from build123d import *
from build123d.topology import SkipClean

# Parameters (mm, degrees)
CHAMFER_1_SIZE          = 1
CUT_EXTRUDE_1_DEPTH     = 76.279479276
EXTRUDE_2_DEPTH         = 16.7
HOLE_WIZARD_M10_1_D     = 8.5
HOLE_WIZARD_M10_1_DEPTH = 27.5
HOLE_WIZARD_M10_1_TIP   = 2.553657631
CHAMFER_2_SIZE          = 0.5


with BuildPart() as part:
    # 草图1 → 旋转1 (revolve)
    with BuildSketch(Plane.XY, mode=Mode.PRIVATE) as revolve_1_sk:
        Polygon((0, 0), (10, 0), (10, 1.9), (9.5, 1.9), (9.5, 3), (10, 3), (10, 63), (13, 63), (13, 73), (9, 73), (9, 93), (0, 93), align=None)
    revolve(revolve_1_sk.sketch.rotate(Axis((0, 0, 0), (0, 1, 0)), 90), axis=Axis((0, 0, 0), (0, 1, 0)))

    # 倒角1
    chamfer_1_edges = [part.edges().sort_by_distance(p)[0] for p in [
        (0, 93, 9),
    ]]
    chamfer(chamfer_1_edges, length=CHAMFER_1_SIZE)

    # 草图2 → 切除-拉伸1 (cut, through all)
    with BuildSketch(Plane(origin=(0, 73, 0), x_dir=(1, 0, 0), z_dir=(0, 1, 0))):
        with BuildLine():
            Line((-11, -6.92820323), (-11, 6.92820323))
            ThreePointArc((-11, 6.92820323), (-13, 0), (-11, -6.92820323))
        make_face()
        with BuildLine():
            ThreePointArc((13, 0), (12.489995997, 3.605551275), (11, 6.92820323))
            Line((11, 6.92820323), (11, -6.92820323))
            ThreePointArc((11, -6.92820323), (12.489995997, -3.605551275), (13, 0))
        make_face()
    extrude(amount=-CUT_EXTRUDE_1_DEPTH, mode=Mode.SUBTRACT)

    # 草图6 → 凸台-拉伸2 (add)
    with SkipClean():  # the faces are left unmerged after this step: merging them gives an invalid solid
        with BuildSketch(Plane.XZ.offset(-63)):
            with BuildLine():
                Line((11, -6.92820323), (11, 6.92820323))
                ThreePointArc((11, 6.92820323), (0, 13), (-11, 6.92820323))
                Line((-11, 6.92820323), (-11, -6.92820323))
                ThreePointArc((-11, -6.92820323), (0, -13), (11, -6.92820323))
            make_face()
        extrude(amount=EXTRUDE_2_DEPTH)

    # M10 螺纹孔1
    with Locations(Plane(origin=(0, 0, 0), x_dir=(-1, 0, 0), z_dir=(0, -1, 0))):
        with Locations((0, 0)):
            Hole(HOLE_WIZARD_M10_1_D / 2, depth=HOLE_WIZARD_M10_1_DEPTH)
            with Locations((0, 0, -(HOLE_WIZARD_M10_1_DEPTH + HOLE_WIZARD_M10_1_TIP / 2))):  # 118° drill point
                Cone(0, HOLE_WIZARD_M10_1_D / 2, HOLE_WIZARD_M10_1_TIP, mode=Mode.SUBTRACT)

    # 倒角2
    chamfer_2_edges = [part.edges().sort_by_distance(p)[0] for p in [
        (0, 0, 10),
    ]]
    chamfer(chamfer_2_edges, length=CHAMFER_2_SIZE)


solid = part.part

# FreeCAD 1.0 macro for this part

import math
import FreeCAD as App
import Part
import Sketcher
Q = App.Units.Quantity


def edges_at(feature, points):
    """Names of the edges that pass closest to the given points."""
    edges = feature.Shape.Edges
    near = lambda p: min(range(len(edges)), key=lambda i: edges[i].distToShape(Part.Vertex(*p))[0])
    return sorted({f"Edge{near(p) + 1}" for p in points})

doc = App.newDocument("Part")
body = doc.addObject("PartDesign::Body", "Body")

sketch1 = body.newObject("Sketcher::SketchObject", "Sketch")
sketch1.AttachmentSupport = (doc.getObject("XY_Plane"), [""])
sketch1.MapMode = "FlatFace"
sketch1.addGeometry(Part.LineSegment(App.Vector(0, 0, 0), App.Vector(10, 0, 0)), False)
sketch1.addGeometry(Part.LineSegment(App.Vector(10, 0, 0), App.Vector(10, 1.9, 0)), False)
sketch1.addGeometry(Part.LineSegment(App.Vector(10, 1.9, 0), App.Vector(9.5, 1.9, 0)), False)
sketch1.addGeometry(Part.LineSegment(App.Vector(9.5, 1.9, 0), App.Vector(9.5, 3, 0)), False)
sketch1.addGeometry(Part.LineSegment(App.Vector(9.5, 3, 0), App.Vector(10, 3, 0)), False)
sketch1.addGeometry(Part.LineSegment(App.Vector(10, 3, 0), App.Vector(10, 63, 0)), False)
sketch1.addGeometry(Part.LineSegment(App.Vector(10, 63, 0), App.Vector(13, 63, 0)), False)
sketch1.addGeometry(Part.LineSegment(App.Vector(13, 63, 0), App.Vector(13, 73, 0)), False)
sketch1.addGeometry(Part.LineSegment(App.Vector(13, 73, 0), App.Vector(9, 73, 0)), False)
sketch1.addGeometry(Part.LineSegment(App.Vector(9, 73, 0), App.Vector(9, 93, 0)), False)
sketch1.addGeometry(Part.LineSegment(App.Vector(9, 93, 0), App.Vector(0, 93, 0)), False)
sketch1.addGeometry(Part.LineSegment(App.Vector(0, 93, 0), App.Vector(0, 0, 0)), False)
sketch1.addConstraint(Sketcher.Constraint("Coincident", 0, 2, 1, 1))
sketch1.addConstraint(Sketcher.Constraint("Coincident", 1, 2, 2, 1))
sketch1.addConstraint(Sketcher.Constraint("Coincident", 2, 2, 3, 1))
sketch1.addConstraint(Sketcher.Constraint("Coincident", 3, 2, 4, 1))
sketch1.addConstraint(Sketcher.Constraint("Coincident", 4, 2, 5, 1))
sketch1.addConstraint(Sketcher.Constraint("Coincident", 5, 2, 6, 1))
sketch1.addConstraint(Sketcher.Constraint("Coincident", 6, 2, 7, 1))
sketch1.addConstraint(Sketcher.Constraint("Coincident", 7, 2, 8, 1))
sketch1.addConstraint(Sketcher.Constraint("Coincident", 8, 2, 9, 1))
sketch1.addConstraint(Sketcher.Constraint("Coincident", 9, 2, 10, 1))
sketch1.addConstraint(Sketcher.Constraint("Coincident", 10, 2, 11, 1))
sketch1.addConstraint(Sketcher.Constraint("Coincident", 11, 2, 0, 1))
sketch1.addConstraint(Sketcher.Constraint("Horizontal", 0))
sketch1.addConstraint(Sketcher.Constraint("Vertical", 1))
sketch1.addConstraint(Sketcher.Constraint("Horizontal", 2))
sketch1.addConstraint(Sketcher.Constraint("Vertical", 3))
sketch1.addConstraint(Sketcher.Constraint("Horizontal", 4))
sketch1.addConstraint(Sketcher.Constraint("Vertical", 5))
sketch1.addConstraint(Sketcher.Constraint("Horizontal", 6))
sketch1.addConstraint(Sketcher.Constraint("Vertical", 7))
sketch1.addConstraint(Sketcher.Constraint("Horizontal", 8))
sketch1.addConstraint(Sketcher.Constraint("Vertical", 9))
sketch1.addConstraint(Sketcher.Constraint("Horizontal", 10))
sketch1.addConstraint(Sketcher.Constraint("Vertical", 11))
sketch1.addConstraint(Sketcher.Constraint("Coincident", 11, 2, -1, 1))
sketch1.addConstraint(Sketcher.Constraint("Vertical", 1, 2, 4, 2))
sketch1.addConstraint(Sketcher.Constraint("Equal", 0, 7))
sketch1.addConstraint(Sketcher.Constraint("DistanceX", 0, 1, 0, 2, Q("10 mm")))
sketch1.addConstraint(Sketcher.Constraint("DistanceX", 6, 1, 6, 2, Q("3 mm")))
sketch1.addConstraint(Sketcher.Constraint("DistanceX", 8, 2, 8, 1, Q("4 mm")))
sketch1.addConstraint(Sketcher.Constraint("DistanceY", 5, 1, 5, 2, Q("60 mm")))
sketch1.addConstraint(Sketcher.Constraint("DistanceY", 9, 1, 9, 2, Q("20 mm")))
sketch1.addConstraint(Sketcher.Constraint("DistanceY", 11, 2, 11, 1, Q("93 mm")))
sketch1.addConstraint(Sketcher.Constraint("DistanceX", 2, 2, 2, 1, Q("0.5 mm")))
sketch1.addConstraint(Sketcher.Constraint("DistanceY", 1, 1, 1, 2, Q("1.9 mm")))
revolution = body.newObject("PartDesign::Revolution", "Revolution")
revolution.Profile = sketch1
revolution.ReferenceAxis = (sketch1, ["V_Axis"])
revolution.Angle = 360
doc.recompute()

chamfer = body.newObject("PartDesign::Chamfer", "Chamfer")
chamfer.Base = (revolution, edges_at(revolution, [(0, 93, 9)]))
chamfer.Size = 1

sketch2 = body.newObject("Sketcher::SketchObject", "Sketch001")
sketch2.AttachmentSupport = (doc.getObject("XZ_Plane"), [""])
sketch2.MapMode = "FlatFace"
sketch2.AttachmentOffset = App.Placement(App.Vector(0, 0, -73), App.Rotation())
sketch2.addGeometry(Part.LineSegment(App.Vector(-11, 7, 0), App.Vector(-11, -7, 0)), False)
sketch2.addGeometry(Part.ArcOfCircle(Part.Circle(App.Vector(0, 0, 0), App.Vector(0, 0, 1), 13), math.radians(148), math.radians(212)), False)
sketch2.addGeometry(Part.ArcOfCircle(Part.Circle(App.Vector(0, 0, 0), App.Vector(0, 0, 1), 13), math.radians(-32), math.radians(0)), False)
sketch2.addGeometry(Part.LineSegment(App.Vector(11, -7, 0), App.Vector(11, 7, 0)), False)
sketch2.addGeometry(Part.ArcOfCircle(Part.Circle(App.Vector(0, 0, 0), App.Vector(0, 0, 1), 13), math.radians(0), math.radians(32)), False)
sketch2.addConstraint(Sketcher.Constraint("Coincident", 0, 1, 1, 1))
sketch2.addConstraint(Sketcher.Constraint("Coincident", 1, 2, 0, 2))
sketch2.addConstraint(Sketcher.Constraint("Coincident", 2, 1, 3, 1))
sketch2.addConstraint(Sketcher.Constraint("Coincident", 3, 2, 4, 2))
sketch2.addConstraint(Sketcher.Constraint("Tangent", 4, 1, 2, 2))
sketch2.addConstraint(Sketcher.Constraint("Vertical", 0))
sketch2.addConstraint(Sketcher.Constraint("Vertical", 3))
sketch2.addConstraint(Sketcher.Constraint("Coincident", 1, 3, -1, 1))
sketch2.addConstraint(Sketcher.Constraint("Coincident", 2, 3, -1, 1))
sketch2.addConstraint(Sketcher.Constraint("Equal", 1, 2))
sketch2.addConstraint(Sketcher.Constraint("Equal", 2, 4))
sketch2.addConstraint(Sketcher.Constraint("PointOnObject", 4, 1, -1))
sketch2.addConstraint(Sketcher.Constraint("Horizontal", 1, 2, 2, 1))
sketch2.addConstraint(Sketcher.Constraint("Radius", 1, Q("13 mm")))
sketch2.addConstraint(Sketcher.Constraint("DistanceX", 0, 1, -1, 1, Q("11 mm")))
pocket1 = body.newObject("PartDesign::Pocket", "Pocket")
pocket1.Profile = sketch2
pocket1.Type = "ThroughAll"
pocket1.Reversed = True

sketch3 = body.newObject("Sketcher::SketchObject", "Sketch002")
sketch3.AttachmentSupport = (doc.getObject("XZ_Plane"), [""])
sketch3.MapMode = "FlatFace"
sketch3.AttachmentOffset = App.Placement(App.Vector(0, 0, -63), App.Rotation())
sketch3.addGeometry(Part.LineSegment(App.Vector(11, -7, 0), App.Vector(11, 7, 0)), False)
sketch3.addGeometry(Part.ArcOfCircle(Part.Circle(App.Vector(0, 0, 0), App.Vector(0, 0, 1), 13), math.radians(32), math.radians(148)), False)
sketch3.addGeometry(Part.LineSegment(App.Vector(-11, 7, 0), App.Vector(-11, -7, 0)), False)
sketch3.addGeometry(Part.ArcOfCircle(Part.Circle(App.Vector(0, 0, 0), App.Vector(0, 0, 1), 13), math.radians(-148), math.radians(-32)), False)
sketch3.addConstraint(Sketcher.Constraint("Coincident", 0, 2, 1, 1))
sketch3.addConstraint(Sketcher.Constraint("Coincident", 1, 2, 2, 1))
sketch3.addConstraint(Sketcher.Constraint("Coincident", 2, 2, 3, 1))
sketch3.addConstraint(Sketcher.Constraint("Coincident", 3, 2, 0, 1))
sketch3.addConstraint(Sketcher.Constraint("Vertical", 0))
sketch3.addConstraint(Sketcher.Constraint("Vertical", 2))
sketch3.addConstraint(Sketcher.Constraint("Coincident", 1, 3, -1, 1))
sketch3.addConstraint(Sketcher.Constraint("Coincident", 3, 3, -1, 1))
sketch3.addConstraint(Sketcher.Constraint("Equal", 1, 3))
sketch3.addConstraint(Sketcher.Constraint("Horizontal", 0, 2, 1, 2))
sketch3.addConstraint(Sketcher.Constraint("Radius", 1, Q("13 mm")))
sketch3.addConstraint(Sketcher.Constraint("DistanceX", -1, 1, 0, 2, Q("11 mm")))
pad1 = body.newObject("PartDesign::Pad", "Pad")
pad1.Profile = sketch3
pad1.Length = 16.7

sketch4 = body.newObject("Sketcher::SketchObject", "Sketch003")
sketch4.AttachmentSupport = (doc.getObject("XZ_Plane"), [""])
sketch4.MapMode = "FlatFace"
sketch4.addGeometry(Part.Circle(App.Vector(0, 0, 0), App.Vector(0, 0, 1), 4.2), False)
sketch4.addConstraint(Sketcher.Constraint("Coincident", 0, 3, -1, 1))
sketch4.addConstraint(Sketcher.Constraint("Diameter", 0, Q("8.5 mm")))
doc.recompute()
hole = body.newObject("PartDesign::Hole", "Hole")
hole.Profile = sketch4
hole.ThreadType = "None"
hole.Diameter = 8.5
hole.DepthType = "Dimension"
hole.Depth = 27.5
hole.DrillPoint = "Angled"
hole.DrillPointAngle = 118
doc.recompute()

chamfer2 = body.newObject("PartDesign::Chamfer", "Chamfer001")
chamfer2.Base = (hole, edges_at(hole, [(0, 0, 10)]))
chamfer2.Size = 0.5

doc.recompute()
